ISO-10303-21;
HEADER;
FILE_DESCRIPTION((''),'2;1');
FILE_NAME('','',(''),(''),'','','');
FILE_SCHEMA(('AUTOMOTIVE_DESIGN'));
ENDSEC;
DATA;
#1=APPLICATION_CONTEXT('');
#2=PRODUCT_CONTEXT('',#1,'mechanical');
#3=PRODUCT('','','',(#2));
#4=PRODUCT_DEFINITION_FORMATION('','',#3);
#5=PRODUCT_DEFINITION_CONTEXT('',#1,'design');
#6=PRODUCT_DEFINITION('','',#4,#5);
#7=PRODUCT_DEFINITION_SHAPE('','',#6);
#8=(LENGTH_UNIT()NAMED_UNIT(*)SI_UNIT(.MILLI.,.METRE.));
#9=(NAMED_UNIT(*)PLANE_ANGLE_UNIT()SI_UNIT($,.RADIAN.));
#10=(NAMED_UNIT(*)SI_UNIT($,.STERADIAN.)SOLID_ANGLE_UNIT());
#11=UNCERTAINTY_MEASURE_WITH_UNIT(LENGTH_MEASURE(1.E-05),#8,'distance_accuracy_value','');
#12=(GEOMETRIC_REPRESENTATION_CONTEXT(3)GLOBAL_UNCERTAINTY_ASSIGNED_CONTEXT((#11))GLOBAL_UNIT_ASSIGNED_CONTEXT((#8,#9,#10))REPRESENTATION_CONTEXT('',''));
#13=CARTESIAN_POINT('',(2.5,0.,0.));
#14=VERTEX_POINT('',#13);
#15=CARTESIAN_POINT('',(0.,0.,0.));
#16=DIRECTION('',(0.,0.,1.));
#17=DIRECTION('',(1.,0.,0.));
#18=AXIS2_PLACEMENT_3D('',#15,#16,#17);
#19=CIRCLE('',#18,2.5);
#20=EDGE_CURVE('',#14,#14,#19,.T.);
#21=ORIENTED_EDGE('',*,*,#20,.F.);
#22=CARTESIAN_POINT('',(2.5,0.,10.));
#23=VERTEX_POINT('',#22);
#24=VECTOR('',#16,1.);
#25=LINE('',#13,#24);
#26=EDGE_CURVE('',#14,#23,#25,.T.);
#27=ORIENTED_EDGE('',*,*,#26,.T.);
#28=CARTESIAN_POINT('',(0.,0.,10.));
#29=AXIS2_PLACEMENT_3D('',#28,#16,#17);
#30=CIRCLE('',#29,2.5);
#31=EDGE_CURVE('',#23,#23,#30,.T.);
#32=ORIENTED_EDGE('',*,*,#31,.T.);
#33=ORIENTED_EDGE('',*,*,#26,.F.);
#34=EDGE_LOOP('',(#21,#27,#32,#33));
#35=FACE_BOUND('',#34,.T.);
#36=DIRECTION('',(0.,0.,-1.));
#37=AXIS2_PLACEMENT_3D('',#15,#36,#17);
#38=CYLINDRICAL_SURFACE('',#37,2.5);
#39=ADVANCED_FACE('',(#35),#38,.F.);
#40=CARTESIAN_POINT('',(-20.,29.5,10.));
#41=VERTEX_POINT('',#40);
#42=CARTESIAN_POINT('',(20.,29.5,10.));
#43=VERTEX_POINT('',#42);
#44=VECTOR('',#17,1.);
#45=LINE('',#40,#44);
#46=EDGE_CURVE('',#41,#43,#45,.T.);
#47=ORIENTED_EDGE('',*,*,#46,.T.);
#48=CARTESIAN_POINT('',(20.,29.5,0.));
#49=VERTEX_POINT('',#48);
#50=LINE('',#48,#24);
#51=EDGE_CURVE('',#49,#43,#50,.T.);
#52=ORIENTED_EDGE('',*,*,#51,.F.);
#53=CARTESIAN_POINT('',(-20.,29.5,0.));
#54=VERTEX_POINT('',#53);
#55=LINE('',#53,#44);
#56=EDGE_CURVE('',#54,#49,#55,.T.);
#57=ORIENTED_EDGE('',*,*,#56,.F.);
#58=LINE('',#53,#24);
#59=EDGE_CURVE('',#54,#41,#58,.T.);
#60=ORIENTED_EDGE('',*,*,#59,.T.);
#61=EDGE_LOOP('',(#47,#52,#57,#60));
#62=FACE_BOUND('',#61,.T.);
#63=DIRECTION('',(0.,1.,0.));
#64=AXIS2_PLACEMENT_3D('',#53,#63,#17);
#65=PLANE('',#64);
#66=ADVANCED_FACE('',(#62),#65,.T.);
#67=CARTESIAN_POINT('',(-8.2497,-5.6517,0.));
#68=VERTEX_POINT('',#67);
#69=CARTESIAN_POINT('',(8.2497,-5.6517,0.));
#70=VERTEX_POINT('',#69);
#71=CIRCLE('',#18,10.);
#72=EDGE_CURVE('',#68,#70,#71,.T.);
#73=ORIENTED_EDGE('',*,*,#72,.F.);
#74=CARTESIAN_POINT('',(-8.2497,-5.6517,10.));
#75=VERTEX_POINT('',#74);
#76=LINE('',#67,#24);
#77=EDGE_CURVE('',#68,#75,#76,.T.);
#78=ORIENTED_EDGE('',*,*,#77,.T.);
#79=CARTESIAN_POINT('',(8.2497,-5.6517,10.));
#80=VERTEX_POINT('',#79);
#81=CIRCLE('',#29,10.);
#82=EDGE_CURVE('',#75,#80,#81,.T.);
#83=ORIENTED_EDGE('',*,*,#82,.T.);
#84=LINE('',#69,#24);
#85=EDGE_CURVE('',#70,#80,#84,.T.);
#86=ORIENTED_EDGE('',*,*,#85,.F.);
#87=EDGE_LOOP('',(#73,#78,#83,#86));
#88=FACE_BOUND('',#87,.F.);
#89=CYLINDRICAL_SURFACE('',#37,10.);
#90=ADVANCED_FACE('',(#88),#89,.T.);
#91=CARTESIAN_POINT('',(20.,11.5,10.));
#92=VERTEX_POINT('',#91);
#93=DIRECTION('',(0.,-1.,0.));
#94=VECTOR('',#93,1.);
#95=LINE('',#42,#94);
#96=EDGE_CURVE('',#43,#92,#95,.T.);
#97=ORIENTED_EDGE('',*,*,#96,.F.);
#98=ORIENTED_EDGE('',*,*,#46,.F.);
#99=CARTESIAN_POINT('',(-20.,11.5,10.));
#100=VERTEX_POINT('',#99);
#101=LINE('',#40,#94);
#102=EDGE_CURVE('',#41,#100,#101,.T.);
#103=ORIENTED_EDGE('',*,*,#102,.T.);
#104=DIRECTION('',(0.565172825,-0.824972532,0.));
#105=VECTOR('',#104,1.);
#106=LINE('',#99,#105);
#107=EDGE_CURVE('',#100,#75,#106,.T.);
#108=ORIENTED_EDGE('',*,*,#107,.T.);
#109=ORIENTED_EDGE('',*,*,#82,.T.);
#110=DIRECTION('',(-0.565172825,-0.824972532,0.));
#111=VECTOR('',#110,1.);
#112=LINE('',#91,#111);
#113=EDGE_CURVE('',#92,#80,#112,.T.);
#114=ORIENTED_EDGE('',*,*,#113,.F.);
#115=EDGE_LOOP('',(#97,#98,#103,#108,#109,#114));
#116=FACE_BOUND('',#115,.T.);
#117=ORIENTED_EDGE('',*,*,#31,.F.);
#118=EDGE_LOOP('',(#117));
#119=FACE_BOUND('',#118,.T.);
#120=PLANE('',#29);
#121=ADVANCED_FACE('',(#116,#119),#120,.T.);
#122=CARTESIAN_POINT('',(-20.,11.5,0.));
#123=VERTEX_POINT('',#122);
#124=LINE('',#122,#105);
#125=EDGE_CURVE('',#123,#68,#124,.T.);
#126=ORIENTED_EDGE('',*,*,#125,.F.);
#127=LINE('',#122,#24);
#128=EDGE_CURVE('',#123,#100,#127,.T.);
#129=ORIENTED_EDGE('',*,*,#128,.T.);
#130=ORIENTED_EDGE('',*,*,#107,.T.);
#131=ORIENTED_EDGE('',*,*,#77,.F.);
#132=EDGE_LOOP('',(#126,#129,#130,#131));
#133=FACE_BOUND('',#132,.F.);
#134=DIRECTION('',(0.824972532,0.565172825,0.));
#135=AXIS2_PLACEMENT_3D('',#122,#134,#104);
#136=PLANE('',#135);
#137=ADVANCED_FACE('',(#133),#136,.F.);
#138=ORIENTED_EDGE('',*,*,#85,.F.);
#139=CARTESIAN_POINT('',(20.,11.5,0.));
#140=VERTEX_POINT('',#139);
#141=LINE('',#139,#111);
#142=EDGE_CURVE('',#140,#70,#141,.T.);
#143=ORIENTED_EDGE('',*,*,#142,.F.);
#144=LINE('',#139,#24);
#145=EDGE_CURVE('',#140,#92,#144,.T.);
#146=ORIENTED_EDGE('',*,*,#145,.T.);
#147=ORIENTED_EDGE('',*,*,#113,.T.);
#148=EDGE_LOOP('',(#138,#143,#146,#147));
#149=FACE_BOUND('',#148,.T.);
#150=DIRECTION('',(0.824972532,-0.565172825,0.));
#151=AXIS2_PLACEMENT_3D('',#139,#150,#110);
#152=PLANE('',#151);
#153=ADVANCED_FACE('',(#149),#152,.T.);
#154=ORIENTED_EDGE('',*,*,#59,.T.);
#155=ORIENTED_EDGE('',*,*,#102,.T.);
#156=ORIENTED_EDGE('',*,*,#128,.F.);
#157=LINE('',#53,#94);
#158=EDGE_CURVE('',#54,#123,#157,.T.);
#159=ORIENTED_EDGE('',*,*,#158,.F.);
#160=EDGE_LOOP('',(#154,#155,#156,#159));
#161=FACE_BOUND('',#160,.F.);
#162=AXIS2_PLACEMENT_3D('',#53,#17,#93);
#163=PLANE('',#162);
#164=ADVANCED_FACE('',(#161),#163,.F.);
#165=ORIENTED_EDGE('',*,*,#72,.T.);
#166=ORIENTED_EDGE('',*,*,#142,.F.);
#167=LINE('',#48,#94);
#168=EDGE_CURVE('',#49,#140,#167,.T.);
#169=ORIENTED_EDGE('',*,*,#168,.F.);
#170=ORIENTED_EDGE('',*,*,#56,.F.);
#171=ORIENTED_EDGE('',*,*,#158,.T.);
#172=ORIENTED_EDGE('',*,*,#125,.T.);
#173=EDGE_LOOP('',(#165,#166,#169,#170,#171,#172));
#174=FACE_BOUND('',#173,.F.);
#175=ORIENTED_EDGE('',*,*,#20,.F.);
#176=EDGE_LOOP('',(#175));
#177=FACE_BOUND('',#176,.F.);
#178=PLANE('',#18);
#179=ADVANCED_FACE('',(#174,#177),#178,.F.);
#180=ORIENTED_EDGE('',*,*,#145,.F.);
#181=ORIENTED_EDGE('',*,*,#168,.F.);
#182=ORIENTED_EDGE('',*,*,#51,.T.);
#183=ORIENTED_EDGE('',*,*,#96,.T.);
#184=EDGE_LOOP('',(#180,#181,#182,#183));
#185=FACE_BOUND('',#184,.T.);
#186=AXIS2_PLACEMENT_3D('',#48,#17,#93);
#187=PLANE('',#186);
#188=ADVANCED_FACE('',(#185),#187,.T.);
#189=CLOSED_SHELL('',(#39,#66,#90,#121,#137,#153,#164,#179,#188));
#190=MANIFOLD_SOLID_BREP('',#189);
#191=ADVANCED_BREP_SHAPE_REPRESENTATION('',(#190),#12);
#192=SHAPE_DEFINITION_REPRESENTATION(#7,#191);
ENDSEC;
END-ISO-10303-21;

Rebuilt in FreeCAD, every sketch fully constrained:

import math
import FreeCAD as App
import Part
import Sketcher

V = App.Vector
Q = App.Units.Quantity

doc = App.newDocument("Part")
body = doc.addObject("PartDesign::Body", "Body")

sketch1 = body.newObject("Sketcher::SketchObject", "Sketch")
sketch1.AttachmentSupport = (doc.getObject("XY_Plane"), [""])
sketch1.MapMode = "FlatFace"
sketch1.addGeometry(Part.LineSegment(V(20, 29.5, 0), V(-20, 29.5, 0)), False)
sketch1.addGeometry(Part.LineSegment(V(-20, 29.5, 0), V(-20, 11.5, 0)), False)
sketch1.addGeometry(Part.LineSegment(V(-20, 11.5, 0), V(-8.2, -5.7, 0)), False)
sketch1.addGeometry(Part.ArcOfCircle(Part.Circle(V(0, 0, 0), V(0, 0, 1), 10), math.radians(-146), math.radians(-34)), False)
sketch1.addGeometry(Part.LineSegment(V(8.2, -5.7, 0), V(20, 11.5, 0)), False)
sketch1.addGeometry(Part.LineSegment(V(20, 11.5, 0), V(20, 29.5, 0)), False)
sketch1.addGeometry(Part.Circle(V(0, 0, 0), V(0, 0, 1), 2.5), False)
sketch1.addConstraint(Sketcher.Constraint("Coincident", 0, 2, 1, 1))
sketch1.addConstraint(Sketcher.Constraint("Coincident", 1, 2, 2, 1))
sketch1.addConstraint(Sketcher.Constraint("Tangent", 2, 2, 3, 1))
sketch1.addConstraint(Sketcher.Constraint("Tangent", 3, 2, 4, 1))
sketch1.addConstraint(Sketcher.Constraint("Coincident", 4, 2, 5, 1))
sketch1.addConstraint(Sketcher.Constraint("Coincident", 5, 2, 0, 1))
sketch1.addConstraint(Sketcher.Constraint("Horizontal", 0))
sketch1.addConstraint(Sketcher.Constraint("Vertical", 1))
sketch1.addConstraint(Sketcher.Constraint("Vertical", 5))
sketch1.addConstraint(Sketcher.Constraint("Coincident", 3, 3, -1, 1))
sketch1.addConstraint(Sketcher.Constraint("Coincident", 6, 3, -1, 1))
sketch1.addConstraint(Sketcher.Constraint("Symmetric", 1, 2, 4, 2, -2))
sketch1.addConstraint(Sketcher.Constraint("Diameter", 6, Q("5 mm")))
sketch1.addConstraint(Sketcher.Constraint("Radius", 3, Q("10 mm")))
sketch1.addConstraint(Sketcher.Constraint("DistanceX", 0, 2, 0, 1, Q("40 mm")))
sketch1.addConstraint(Sketcher.Constraint("DistanceY", 1, 2, 1, 1, Q("18 mm")))
sketch1.addConstraint(Sketcher.Constraint("DistanceY", -1, 1, 0, 2, Q("29.5 mm")))
pad1 = body.newObject("PartDesign::Pad", "Pad")
pad1.Profile = sketch1
pad1.Length = 10

doc.recompute()
